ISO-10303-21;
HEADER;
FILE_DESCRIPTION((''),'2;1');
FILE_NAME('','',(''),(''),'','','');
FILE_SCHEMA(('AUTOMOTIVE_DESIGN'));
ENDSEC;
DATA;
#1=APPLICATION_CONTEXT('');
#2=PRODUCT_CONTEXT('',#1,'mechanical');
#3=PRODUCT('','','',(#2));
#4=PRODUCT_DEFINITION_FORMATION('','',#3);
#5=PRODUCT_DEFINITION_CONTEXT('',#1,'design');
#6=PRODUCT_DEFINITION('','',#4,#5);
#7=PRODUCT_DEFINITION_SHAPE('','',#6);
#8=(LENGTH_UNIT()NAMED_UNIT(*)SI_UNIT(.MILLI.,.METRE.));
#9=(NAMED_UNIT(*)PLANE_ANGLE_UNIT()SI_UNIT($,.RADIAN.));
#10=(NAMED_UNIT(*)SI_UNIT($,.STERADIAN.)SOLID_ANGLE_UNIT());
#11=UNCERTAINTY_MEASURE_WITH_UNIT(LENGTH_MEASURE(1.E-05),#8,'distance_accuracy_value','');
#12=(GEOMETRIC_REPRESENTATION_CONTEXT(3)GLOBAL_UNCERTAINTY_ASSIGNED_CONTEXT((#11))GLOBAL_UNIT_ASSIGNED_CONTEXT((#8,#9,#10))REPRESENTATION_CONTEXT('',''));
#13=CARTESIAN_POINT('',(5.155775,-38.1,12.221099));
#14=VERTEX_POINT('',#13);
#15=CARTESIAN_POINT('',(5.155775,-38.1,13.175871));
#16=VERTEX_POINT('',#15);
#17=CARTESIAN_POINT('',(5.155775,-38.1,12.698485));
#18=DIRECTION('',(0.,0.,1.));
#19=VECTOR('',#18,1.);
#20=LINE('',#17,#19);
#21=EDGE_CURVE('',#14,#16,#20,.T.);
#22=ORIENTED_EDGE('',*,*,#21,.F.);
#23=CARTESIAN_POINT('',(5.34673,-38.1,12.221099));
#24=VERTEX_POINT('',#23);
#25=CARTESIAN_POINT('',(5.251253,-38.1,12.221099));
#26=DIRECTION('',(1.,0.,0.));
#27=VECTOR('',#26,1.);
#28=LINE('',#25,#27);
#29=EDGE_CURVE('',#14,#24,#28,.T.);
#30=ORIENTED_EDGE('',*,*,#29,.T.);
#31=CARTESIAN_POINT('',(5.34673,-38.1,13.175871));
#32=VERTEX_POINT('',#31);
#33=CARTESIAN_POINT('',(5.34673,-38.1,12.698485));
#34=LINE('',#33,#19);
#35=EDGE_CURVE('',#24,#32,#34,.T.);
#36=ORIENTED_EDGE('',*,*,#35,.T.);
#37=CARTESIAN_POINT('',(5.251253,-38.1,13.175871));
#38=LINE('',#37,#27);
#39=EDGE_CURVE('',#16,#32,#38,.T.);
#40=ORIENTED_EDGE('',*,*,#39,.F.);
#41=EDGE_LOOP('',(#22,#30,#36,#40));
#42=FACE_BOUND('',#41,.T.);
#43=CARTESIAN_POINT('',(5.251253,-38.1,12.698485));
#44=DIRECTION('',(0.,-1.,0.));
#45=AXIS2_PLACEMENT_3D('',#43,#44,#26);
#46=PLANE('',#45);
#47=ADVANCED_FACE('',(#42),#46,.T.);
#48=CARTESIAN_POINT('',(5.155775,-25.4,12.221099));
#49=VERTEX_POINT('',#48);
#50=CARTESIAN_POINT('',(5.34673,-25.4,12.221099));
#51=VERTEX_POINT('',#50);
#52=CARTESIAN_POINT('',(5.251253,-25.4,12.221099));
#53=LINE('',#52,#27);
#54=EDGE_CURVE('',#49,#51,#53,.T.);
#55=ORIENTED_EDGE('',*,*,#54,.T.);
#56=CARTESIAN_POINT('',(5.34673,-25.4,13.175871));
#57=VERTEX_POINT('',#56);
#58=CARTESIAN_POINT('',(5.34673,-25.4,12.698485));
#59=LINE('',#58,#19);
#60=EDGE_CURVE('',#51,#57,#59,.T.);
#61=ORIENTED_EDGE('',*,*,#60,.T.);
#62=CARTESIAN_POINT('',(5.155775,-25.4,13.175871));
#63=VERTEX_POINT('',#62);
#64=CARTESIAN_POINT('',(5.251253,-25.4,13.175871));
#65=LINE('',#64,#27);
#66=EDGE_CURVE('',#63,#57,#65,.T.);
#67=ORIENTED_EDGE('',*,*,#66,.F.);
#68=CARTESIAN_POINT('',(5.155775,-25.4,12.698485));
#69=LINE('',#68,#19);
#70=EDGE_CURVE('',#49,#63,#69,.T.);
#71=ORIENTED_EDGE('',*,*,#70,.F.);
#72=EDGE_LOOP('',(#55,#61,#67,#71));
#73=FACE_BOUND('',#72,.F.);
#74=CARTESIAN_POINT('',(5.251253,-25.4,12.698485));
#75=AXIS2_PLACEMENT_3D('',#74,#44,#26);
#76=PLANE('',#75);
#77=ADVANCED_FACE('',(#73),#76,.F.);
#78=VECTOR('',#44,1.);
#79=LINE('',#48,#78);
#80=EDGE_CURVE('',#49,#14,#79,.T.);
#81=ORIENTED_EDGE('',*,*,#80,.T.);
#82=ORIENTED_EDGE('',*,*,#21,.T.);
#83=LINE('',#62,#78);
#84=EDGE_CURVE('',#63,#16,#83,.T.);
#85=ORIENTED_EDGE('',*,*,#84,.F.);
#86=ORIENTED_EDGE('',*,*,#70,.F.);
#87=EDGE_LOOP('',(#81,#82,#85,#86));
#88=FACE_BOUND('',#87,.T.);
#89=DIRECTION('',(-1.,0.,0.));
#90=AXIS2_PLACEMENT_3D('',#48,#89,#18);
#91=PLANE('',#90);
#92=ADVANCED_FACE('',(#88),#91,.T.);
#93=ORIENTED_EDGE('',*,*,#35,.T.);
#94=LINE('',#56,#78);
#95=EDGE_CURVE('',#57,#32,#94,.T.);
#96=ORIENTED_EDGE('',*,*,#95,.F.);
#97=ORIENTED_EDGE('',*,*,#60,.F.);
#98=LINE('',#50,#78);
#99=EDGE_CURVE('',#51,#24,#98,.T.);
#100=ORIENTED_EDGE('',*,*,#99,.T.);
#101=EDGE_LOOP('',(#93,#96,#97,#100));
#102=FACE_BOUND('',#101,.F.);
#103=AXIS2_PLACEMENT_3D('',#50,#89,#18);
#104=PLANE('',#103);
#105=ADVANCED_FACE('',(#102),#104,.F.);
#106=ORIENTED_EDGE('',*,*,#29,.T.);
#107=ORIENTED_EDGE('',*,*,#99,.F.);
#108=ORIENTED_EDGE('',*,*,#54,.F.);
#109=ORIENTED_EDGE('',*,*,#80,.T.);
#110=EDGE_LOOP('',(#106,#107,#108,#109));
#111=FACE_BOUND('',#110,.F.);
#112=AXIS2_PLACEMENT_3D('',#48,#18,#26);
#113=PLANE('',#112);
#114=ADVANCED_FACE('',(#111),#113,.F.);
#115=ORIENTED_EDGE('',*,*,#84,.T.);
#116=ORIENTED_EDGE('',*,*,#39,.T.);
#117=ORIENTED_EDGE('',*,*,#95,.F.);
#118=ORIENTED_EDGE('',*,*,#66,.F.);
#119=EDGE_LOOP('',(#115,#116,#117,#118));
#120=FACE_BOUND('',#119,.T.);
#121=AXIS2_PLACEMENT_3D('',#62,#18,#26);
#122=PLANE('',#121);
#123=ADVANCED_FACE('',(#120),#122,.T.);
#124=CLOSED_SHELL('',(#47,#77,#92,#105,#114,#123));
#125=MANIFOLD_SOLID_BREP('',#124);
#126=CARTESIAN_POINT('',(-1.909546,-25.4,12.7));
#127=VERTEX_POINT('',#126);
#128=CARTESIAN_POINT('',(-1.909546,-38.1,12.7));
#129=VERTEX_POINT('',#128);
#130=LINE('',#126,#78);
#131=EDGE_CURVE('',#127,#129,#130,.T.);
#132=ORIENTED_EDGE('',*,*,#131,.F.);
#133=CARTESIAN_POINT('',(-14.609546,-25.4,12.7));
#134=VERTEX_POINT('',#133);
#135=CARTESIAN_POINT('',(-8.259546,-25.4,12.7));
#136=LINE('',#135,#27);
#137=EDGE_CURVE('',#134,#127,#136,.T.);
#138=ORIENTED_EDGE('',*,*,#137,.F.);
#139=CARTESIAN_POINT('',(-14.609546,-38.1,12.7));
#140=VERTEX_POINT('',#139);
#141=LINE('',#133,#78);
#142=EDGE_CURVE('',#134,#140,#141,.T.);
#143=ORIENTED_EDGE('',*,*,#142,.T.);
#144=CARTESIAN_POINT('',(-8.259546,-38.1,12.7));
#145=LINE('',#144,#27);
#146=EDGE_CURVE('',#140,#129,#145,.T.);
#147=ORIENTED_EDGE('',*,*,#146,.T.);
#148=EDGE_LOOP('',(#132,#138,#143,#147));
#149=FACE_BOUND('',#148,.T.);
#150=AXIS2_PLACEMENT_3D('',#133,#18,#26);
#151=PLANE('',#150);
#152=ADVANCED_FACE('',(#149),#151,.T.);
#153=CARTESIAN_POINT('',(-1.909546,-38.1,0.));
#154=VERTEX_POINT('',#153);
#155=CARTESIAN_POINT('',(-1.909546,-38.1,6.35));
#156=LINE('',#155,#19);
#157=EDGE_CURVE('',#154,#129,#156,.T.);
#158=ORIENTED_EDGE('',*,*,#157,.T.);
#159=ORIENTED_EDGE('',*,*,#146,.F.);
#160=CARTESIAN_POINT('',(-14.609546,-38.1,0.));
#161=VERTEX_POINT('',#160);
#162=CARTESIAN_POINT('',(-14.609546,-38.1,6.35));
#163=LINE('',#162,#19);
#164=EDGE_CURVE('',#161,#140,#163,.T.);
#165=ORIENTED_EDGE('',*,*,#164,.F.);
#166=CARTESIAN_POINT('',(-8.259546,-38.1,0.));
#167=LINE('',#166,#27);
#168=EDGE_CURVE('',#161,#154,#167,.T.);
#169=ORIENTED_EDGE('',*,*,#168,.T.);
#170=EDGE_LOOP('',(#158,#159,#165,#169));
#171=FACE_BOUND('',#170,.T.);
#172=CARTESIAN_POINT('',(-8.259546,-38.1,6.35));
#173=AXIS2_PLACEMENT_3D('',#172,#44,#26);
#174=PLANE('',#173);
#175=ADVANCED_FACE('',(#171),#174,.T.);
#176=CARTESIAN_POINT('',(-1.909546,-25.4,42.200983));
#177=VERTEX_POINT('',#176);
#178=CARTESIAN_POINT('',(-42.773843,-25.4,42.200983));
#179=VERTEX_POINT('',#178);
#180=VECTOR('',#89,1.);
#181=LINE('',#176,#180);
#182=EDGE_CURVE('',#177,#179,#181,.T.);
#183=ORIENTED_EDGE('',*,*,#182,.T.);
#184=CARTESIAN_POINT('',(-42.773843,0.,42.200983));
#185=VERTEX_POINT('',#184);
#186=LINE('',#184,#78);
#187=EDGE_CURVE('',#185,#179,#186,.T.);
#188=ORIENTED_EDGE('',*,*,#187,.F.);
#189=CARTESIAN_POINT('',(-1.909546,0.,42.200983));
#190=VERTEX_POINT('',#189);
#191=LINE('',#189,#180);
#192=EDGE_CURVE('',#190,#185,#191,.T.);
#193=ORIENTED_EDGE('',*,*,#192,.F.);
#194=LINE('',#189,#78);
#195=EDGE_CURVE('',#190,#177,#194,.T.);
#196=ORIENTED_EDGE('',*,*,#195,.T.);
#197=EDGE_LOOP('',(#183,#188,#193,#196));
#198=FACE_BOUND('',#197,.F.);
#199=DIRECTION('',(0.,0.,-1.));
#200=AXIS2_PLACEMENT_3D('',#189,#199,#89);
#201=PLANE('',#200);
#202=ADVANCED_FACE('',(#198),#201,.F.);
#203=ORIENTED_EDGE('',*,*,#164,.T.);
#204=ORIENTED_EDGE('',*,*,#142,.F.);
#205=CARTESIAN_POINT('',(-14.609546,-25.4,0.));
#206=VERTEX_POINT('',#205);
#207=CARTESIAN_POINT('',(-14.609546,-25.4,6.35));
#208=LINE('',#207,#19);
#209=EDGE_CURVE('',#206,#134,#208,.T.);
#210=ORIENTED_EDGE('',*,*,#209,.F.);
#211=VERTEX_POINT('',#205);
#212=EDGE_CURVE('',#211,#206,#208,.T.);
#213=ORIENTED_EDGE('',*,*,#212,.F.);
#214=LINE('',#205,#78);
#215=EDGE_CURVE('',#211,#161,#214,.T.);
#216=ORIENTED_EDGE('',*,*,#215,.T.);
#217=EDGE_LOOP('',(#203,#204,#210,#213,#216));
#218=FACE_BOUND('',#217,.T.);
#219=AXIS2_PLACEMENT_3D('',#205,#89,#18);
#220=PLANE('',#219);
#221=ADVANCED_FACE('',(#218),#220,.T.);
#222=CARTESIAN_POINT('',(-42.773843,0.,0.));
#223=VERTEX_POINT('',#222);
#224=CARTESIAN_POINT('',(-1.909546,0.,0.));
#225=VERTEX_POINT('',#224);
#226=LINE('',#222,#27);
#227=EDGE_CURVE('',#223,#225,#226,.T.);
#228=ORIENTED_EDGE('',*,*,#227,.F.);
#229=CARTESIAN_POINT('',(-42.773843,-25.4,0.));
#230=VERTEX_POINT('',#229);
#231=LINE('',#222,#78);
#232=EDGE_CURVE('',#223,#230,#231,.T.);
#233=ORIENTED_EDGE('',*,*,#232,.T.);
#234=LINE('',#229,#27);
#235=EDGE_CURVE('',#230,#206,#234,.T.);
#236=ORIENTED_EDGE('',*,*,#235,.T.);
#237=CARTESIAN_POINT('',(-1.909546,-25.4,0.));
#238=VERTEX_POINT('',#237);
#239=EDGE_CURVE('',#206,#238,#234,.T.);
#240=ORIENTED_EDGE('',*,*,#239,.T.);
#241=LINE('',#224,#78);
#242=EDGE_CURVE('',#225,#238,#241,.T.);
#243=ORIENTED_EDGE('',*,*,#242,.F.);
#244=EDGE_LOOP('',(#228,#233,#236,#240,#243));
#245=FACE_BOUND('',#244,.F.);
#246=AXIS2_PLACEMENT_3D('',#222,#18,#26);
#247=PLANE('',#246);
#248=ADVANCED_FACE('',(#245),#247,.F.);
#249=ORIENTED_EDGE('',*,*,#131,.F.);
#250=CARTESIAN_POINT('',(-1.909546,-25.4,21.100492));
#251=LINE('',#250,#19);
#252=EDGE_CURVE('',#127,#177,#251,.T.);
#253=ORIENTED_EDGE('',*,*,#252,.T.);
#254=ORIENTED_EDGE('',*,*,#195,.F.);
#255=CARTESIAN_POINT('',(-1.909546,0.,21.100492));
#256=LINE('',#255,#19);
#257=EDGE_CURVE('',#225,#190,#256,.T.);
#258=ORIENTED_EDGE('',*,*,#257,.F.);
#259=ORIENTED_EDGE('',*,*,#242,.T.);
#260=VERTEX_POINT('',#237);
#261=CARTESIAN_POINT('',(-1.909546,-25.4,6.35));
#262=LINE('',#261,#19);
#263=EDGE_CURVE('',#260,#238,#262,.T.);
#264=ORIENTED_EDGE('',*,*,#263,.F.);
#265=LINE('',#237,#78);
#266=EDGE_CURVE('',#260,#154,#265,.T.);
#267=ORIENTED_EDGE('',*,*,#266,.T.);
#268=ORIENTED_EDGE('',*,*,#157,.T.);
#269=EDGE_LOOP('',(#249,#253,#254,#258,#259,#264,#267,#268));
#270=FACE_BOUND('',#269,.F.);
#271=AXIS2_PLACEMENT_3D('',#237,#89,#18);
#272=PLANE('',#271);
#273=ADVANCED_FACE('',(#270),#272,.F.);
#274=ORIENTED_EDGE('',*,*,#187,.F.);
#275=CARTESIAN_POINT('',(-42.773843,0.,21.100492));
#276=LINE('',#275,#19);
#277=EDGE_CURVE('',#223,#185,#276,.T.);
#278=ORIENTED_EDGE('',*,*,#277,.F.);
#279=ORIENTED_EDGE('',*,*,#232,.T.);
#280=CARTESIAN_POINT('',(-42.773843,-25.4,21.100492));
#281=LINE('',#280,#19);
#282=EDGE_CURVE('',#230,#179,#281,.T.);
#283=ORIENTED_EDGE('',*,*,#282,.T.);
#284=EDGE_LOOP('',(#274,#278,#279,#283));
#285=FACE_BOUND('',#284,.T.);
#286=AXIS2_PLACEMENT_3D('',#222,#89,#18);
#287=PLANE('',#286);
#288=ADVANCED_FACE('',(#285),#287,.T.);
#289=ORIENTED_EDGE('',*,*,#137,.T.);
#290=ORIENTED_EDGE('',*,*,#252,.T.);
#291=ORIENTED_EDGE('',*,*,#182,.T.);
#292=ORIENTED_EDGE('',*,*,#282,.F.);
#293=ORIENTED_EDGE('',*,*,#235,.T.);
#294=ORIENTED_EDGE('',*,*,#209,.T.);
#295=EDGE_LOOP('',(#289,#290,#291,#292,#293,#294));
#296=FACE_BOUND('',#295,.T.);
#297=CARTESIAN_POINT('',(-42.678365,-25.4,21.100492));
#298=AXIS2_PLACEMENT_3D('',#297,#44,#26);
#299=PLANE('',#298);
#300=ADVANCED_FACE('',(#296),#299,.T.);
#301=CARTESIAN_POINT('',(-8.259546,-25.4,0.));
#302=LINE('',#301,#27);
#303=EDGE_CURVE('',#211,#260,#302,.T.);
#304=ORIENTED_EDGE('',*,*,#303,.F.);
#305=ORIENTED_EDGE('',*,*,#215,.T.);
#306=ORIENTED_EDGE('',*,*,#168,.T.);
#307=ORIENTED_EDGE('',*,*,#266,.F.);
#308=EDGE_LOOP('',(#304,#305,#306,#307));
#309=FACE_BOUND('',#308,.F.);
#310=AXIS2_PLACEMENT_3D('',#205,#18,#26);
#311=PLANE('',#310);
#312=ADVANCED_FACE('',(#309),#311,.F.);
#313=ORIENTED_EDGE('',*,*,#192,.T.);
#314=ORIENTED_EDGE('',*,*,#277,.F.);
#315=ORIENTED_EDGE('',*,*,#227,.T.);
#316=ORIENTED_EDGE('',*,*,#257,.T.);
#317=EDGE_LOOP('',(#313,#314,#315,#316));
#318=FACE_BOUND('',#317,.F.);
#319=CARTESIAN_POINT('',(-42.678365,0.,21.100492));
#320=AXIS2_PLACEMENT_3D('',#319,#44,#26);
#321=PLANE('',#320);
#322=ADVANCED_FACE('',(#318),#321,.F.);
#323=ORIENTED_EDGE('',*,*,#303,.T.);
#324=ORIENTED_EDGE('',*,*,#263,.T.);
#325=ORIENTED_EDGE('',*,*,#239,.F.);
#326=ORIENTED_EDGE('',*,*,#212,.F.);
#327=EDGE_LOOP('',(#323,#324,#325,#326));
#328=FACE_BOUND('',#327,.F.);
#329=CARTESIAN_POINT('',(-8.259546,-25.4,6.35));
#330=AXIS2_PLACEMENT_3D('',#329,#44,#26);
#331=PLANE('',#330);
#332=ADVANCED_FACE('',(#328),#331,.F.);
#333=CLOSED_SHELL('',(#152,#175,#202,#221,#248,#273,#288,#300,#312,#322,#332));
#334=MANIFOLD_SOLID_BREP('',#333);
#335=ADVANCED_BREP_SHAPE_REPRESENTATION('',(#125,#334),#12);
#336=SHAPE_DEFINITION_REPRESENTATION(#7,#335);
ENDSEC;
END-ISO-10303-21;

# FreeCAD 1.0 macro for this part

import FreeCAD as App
import Part
import Sketcher
from FreeCAD import Vector
Q = App.Units.Quantity

doc = App.newDocument("Part")
body = doc.addObject("PartDesign::Body", "Body")
body.AllowCompound = True

sketch1 = doc.addObject("Sketcher::SketchObject", "Sketch")
body.addObject(sketch1)
sketch1.AttachmentSupport = (doc.XZ_Plane, [""])
sketch1.MapMode = "FlatFace"
sketch1.addGeometry(Part.LineSegment(Vector(-43, 42, 0), Vector(-43, 0, 0)), False)
sketch1.addGeometry(Part.LineSegment(Vector(-43, 0, 0), Vector(-2, 0, 0)), False)
sketch1.addGeometry(Part.LineSegment(Vector(-2, 0, 0), Vector(-2, 42, 0)), False)
sketch1.addGeometry(Part.LineSegment(Vector(-2, 42, 0), Vector(-43, 42, 0)), False)
sketch1.addConstraint(Sketcher.Constraint("Coincident", 0, 2, 1, 1))
sketch1.addConstraint(Sketcher.Constraint("Coincident", 1, 2, 2, 1))
sketch1.addConstraint(Sketcher.Constraint("Coincident", 2, 2, 3, 1))
sketch1.addConstraint(Sketcher.Constraint("Coincident", 3, 2, 0, 1))
sketch1.addConstraint(Sketcher.Constraint("Vertical", 0))
sketch1.addConstraint(Sketcher.Constraint("Horizontal", 1))
sketch1.addConstraint(Sketcher.Constraint("Vertical", 2))
sketch1.addConstraint(Sketcher.Constraint("Horizontal", 3))
sketch1.addConstraint(Sketcher.Constraint("PointOnObject", 0, 2, -1))
sketch1.addConstraint(Sketcher.Constraint("DistanceX", 1, 1, 1, 2, Q("40.864297 mm")))
sketch1.addConstraint(Sketcher.Constraint("DistanceY", 0, 2, 0, 1, Q("42.200983 mm")))
sketch1.addConstraint(Sketcher.Constraint("DistanceX", 0, 2, -1, 1, Q("42.773843 mm")))
pad1 = doc.addObject("PartDesign::Pad", "Pad")
body.addObject(pad1)
pad1.Profile = sketch1
pad1.Length = Q("1 in")

sketch2 = doc.addObject("Sketcher::SketchObject", "Sketch001")
body.addObject(sketch2)
sketch2.AttachmentSupport = (doc.XZ_Plane, [""])
sketch2.MapMode = "FlatFace"
sketch2.AttachmentOffset = App.Placement(Vector(0, 0, 1 * 25.4), App.Rotation())
sketch2.addGeometry(Part.LineSegment(Vector(-14.61, 12.7, 0), Vector(-14.61, 0, 0)), False)
sketch2.addGeometry(Part.LineSegment(Vector(-14.61, 0, 0), Vector(-1.91, 0, 0)), False)
sketch2.addGeometry(Part.LineSegment(Vector(-1.91, 0, 0), Vector(-1.91, 12.7, 0)), False)
sketch2.addGeometry(Part.LineSegment(Vector(-1.91, 12.7, 0), Vector(-14.61, 12.7, 0)), False)
sketch2.addGeometry(Part.LineSegment(Vector(5.16, 13.18, 0), Vector(5.16, 12.22, 0)), False)
sketch2.addGeometry(Part.LineSegment(Vector(5.16, 12.22, 0), Vector(5.35, 12.22, 0)), False)
sketch2.addGeometry(Part.LineSegment(Vector(5.35, 12.22, 0), Vector(5.35, 13.18, 0)), False)
sketch2.addGeometry(Part.LineSegment(Vector(5.35, 13.18, 0), Vector(5.16, 13.18, 0)), False)
sketch2.addConstraint(Sketcher.Constraint("Coincident", 0, 2, 1, 1))
sketch2.addConstraint(Sketcher.Constraint("Coincident", 1, 2, 2, 1))
sketch2.addConstraint(Sketcher.Constraint("Coincident", 2, 2, 3, 1))
sketch2.addConstraint(Sketcher.Constraint("Coincident", 3, 2, 0, 1))
sketch2.addConstraint(Sketcher.Constraint("Coincident", 4, 2, 5, 1))
sketch2.addConstraint(Sketcher.Constraint("Coincident", 5, 2, 6, 1))
sketch2.addConstraint(Sketcher.Constraint("Coincident", 6, 2, 7, 1))
sketch2.addConstraint(Sketcher.Constraint("Coincident", 7, 2, 4, 1))
sketch2.addConstraint(Sketcher.Constraint("Vertical", 0))
sketch2.addConstraint(Sketcher.Constraint("Horizontal", 1))
sketch2.addConstraint(Sketcher.Constraint("Vertical", 2))
sketch2.addConstraint(Sketcher.Constraint("Horizontal", 3))
sketch2.addConstraint(Sketcher.Constraint("Vertical", 4))
sketch2.addConstraint(Sketcher.Constraint("Horizontal", 5))
sketch2.addConstraint(Sketcher.Constraint("Vertical", 6))
sketch2.addConstraint(Sketcher.Constraint("Horizontal", 7))
sketch2.addConstraint(Sketcher.Constraint("PointOnObject", 0, 2, -1))
sketch2.addConstraint(Sketcher.Constraint("Equal", 3, 0))
sketch2.addConstraint(Sketcher.Constraint("DistanceX", 1, 1, 1, 2, Q("0.5 in")))
sketch2.addConstraint(Sketcher.Constraint("DistanceY", -1, 1, 4, 2, Q("12.221099 mm")))
sketch2.addConstraint(Sketcher.Constraint("DistanceX", 5, 1, 5, 2, Q("0.190955 mm")))
sketch2.addConstraint(Sketcher.Constraint("DistanceY", 4, 2, 4, 1, Q("0.954772 mm")))
sketch2.addConstraint(Sketcher.Constraint("DistanceX", -1, 1, 5, 2, Q("5.34673 mm")))
sketch2.addConstraint(Sketcher.Constraint("DistanceX", 2, 2, 4, 2, Q("7.065321 mm")))
pad2 = doc.addObject("PartDesign::Pad", "Pad001")
body.addObject(pad2)
pad2.Profile = sketch2
pad2.Length = Q("0.5 in")

doc.recompute()
